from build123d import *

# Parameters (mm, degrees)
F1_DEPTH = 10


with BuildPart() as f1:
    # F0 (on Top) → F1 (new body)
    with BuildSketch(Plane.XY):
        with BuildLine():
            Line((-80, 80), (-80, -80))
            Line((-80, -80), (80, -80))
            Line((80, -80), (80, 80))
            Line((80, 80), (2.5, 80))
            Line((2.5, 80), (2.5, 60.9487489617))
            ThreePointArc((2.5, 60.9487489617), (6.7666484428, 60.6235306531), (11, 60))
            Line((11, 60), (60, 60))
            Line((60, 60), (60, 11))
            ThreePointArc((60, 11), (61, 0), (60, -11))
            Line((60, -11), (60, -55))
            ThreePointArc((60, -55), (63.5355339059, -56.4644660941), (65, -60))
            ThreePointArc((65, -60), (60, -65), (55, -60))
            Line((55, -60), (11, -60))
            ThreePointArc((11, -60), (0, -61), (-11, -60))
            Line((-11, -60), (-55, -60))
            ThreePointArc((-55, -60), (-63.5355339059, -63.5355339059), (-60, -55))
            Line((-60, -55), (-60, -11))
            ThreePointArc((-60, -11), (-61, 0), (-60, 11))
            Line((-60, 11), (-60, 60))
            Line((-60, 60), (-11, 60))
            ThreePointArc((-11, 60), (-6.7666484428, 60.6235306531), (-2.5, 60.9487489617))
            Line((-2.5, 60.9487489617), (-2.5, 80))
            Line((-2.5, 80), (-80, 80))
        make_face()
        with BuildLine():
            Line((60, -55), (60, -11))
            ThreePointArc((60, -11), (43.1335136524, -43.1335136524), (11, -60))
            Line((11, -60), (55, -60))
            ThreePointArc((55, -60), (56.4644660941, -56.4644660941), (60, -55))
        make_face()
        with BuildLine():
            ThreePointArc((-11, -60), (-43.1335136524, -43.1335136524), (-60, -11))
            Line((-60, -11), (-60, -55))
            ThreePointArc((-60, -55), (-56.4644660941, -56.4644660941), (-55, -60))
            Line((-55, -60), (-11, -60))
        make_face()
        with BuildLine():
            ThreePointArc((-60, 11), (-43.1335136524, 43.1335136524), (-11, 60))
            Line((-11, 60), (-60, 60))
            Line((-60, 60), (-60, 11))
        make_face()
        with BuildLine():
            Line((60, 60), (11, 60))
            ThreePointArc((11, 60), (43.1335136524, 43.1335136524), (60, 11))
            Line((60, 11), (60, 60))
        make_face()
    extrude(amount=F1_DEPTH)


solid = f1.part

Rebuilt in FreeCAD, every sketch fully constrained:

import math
import FreeCAD as App
import Part
import Sketcher

doc = App.newDocument("Part")
body = doc.addObject("PartDesign::Body", "Body")

# Sketch on XY plane
sketch1 = body.newObject("Sketcher::SketchObject", "Sketch")
sketch1.AttachmentSupport = (doc.getObject("XY_Plane"), [""])
sketch1.MapMode = "FlatFace"
sketch1.addGeometry([
    Part.LineSegment(App.Vector(-80, 80, 0), App.Vector(-80, -80, 0)),  # 0
    Part.LineSegment(App.Vector(-80, -80, 0), App.Vector(80, -80, 0)),  # 1
    Part.LineSegment(App.Vector(80, -80, 0), App.Vector(80, 80, 0)),  # 2
    Part.LineSegment(App.Vector(80, 80, 0), App.Vector(2, 80, 0)),  # 3
    Part.LineSegment(App.Vector(2, 80, 0), App.Vector(2, 61, 0)),  # 4
    Part.ArcOfCircle(Part.Circle(App.Vector(0, 0, 0), App.Vector(0, 0, 1), 61), math.radians(79.61), math.radians(87.65)),  # 5
    Part.ArcOfCircle(Part.Circle(App.Vector(0, 0, 0), App.Vector(0, 0, 1), 61), math.radians(10), math.radians(80)),  # 6
    Part.ArcOfCircle(Part.Circle(App.Vector(0, 0, 0), App.Vector(0, 0, 1), 61), math.radians(-10), math.radians(10)),  # 7
    Part.ArcOfCircle(Part.Circle(App.Vector(0, 0, 0), App.Vector(0, 0, 1), 61), math.radians(-80), math.radians(-10)),  # 8
    Part.ArcOfCircle(Part.Circle(App.Vector(0, 0, 0), App.Vector(0, 0, 1), 61), math.radians(-100), math.radians(-80)),  # 9
    Part.ArcOfCircle(Part.Circle(App.Vector(0, 0, 0), App.Vector(0, 0, 1), 61), math.radians(-170), math.radians(-100)),  # 10
    Part.ArcOfCircle(Part.Circle(App.Vector(0, 0, 0), App.Vector(0, 0, 1), 61), math.radians(170), math.radians(190)),  # 11
    Part.ArcOfCircle(Part.Circle(App.Vector(0, 0, 0), App.Vector(0, 0, 1), 61), math.radians(100), math.radians(170)),  # 12
    Part.ArcOfCircle(Part.Circle(App.Vector(0, 0, 0), App.Vector(0, 0, 1), 61), math.radians(92.35), math.radians(100.39)),  # 13
    Part.LineSegment(App.Vector(-2, 61, 0), App.Vector(-2, 80, 0)),  # 14
    Part.LineSegment(App.Vector(-2, 80, 0), App.Vector(-80, 80, 0)),  # 15
    Part.ArcOfCircle(Part.Circle(App.Vector(-60, -60, 0), App.Vector(0, 0, 1), 5), math.radians(90), math.radians(360)),  # 16
    Part.ArcOfCircle(Part.Circle(App.Vector(-60, -60, 0), App.Vector(0, 0, 1), 5), math.radians(0), math.radians(90)),  # 17
    Part.ArcOfCircle(Part.Circle(App.Vector(60, -60, 0), App.Vector(0, 0, 1), 5), math.radians(0), math.radians(90)),  # 18
    Part.ArcOfCircle(Part.Circle(App.Vector(60, -60, 0), App.Vector(0, 0, 1), 5), math.radians(180), math.radians(360)),  # 19
    Part.ArcOfCircle(Part.Circle(App.Vector(60, -60, 0), App.Vector(0, 0, 1), 5), math.radians(90), math.radians(180)),  # 20
], False)
sketch1.addConstraint([
    Sketcher.Constraint("Coincident", 0, 2, 1, 1),
    Sketcher.Constraint("Coincident", 1, 2, 2, 1),
    Sketcher.Constraint("Coincident", 2, 2, 3, 1),
    Sketcher.Constraint("Coincident", 3, 2, 4, 1),
    Sketcher.Constraint("Coincident", 4, 2, 5, 2),
    Sketcher.Constraint("Tangent", 5, 1, 6, 2),
    Sketcher.Constraint("Tangent", 6, 1, 7, 2),
    Sketcher.Constraint("Tangent", 7, 1, 8, 2),
    Sketcher.Constraint("Tangent", 8, 1, 9, 2),
    Sketcher.Constraint("Tangent", 9, 1, 10, 2),
    Sketcher.Constraint("Tangent", 10, 1, 11, 2),
    Sketcher.Constraint("Tangent", 11, 1, 12, 2),
    Sketcher.Constraint("Tangent", 12, 1, 13, 2),
    Sketcher.Constraint("Coincident", 13, 1, 14, 1),
    Sketcher.Constraint("Coincident", 14, 2, 15, 1),
    Sketcher.Constraint("Coincident", 15, 2, 0, 1),
    Sketcher.Constraint("Tangent", 16, 1, 17, 2),
    Sketcher.Constraint("Coincident", 17, 1, 16, 2),
    Sketcher.Constraint("Tangent", 18, 1, 19, 2),
    Sketcher.Constraint("Tangent", 19, 1, 20, 2),
    Sketcher.Constraint("Tangent", 20, 1, 18, 2),
    Sketcher.Constraint("Vertical", 0),
    Sketcher.Constraint("Horizontal", 1),
    Sketcher.Constraint("Vertical", 2),
    Sketcher.Constraint("Horizontal", 3),
    Sketcher.Constraint("Vertical", 4),
    Sketcher.Constraint("Vertical", 14),
    Sketcher.Constraint("Horizontal", 15),
    Sketcher.Constraint("Coincident", 5, 3, -1, 1),
    Sketcher.Constraint("Coincident", 7, 3, -1, 1),
    Sketcher.Constraint("Coincident", 9, 3, -1, 1),
    Sketcher.Constraint("Coincident", 11, 3, -1, 1),
    Sketcher.Constraint("Coincident", 13, 3, -1, 1),
    Sketcher.Constraint("Equal", 17, 18),
    Sketcher.Constraint("Symmetric", 0, 2, 2, 2, -1, 1),
    Sketcher.Constraint("Symmetric", 16, 3, 18, 3, -2),
    Sketcher.Constraint("Symmetric", 3, 2, 14, 2, -2),
    Sketcher.Constraint("Horizontal", 20, 3, 8, 1),
    Sketcher.Constraint("Horizontal", 8, 1, 9, 1),
    Sketcher.Constraint("Horizontal", 7, 1, 10, 1),
    Sketcher.Constraint("Horizontal", 6, 1, 11, 1),
    Sketcher.Constraint("Horizontal", 5, 1, 12, 1),
    Sketcher.Constraint("Horizontal", 9, 1, 17, 1),
    Sketcher.Constraint("Horizontal", 17, 1, 18, 1),
    Sketcher.Constraint("Horizontal", 18, 1, 19, 1),
    Sketcher.Constraint("Vertical", 20, 3, 6, 1),
    Sketcher.Constraint("Vertical", 6, 1, 7, 1),
    Sketcher.Constraint("Vertical", 5, 1, 8, 1),
    Sketcher.Constraint("Vertical", 11, 1, 16, 1),
    Sketcher.Constraint("Vertical", 7, 1, 20, 1),
    Sketcher.Constraint("Equal", 1, 0),
    Sketcher.Constraint("Radius", 5, 61.0),
    Sketcher.Constraint("Radius", 16, 5.0),
    Sketcher.Constraint("DistanceX", 1, 1, 1, 2, 160.0),
    Sketcher.Constraint("DistanceX", 3, 2, 3, 1, 77.5),
    Sketcher.Constraint("DistanceX", 16, 3, -1, 1, 60.0),
    Sketcher.Constraint("DistanceY", 16, 3, -1, 1, 60.0),
])
pad1 = body.newObject("PartDesign::Pad", "Pad")
pad1.Profile = sketch1
pad1.Length = 10

doc.recompute()
